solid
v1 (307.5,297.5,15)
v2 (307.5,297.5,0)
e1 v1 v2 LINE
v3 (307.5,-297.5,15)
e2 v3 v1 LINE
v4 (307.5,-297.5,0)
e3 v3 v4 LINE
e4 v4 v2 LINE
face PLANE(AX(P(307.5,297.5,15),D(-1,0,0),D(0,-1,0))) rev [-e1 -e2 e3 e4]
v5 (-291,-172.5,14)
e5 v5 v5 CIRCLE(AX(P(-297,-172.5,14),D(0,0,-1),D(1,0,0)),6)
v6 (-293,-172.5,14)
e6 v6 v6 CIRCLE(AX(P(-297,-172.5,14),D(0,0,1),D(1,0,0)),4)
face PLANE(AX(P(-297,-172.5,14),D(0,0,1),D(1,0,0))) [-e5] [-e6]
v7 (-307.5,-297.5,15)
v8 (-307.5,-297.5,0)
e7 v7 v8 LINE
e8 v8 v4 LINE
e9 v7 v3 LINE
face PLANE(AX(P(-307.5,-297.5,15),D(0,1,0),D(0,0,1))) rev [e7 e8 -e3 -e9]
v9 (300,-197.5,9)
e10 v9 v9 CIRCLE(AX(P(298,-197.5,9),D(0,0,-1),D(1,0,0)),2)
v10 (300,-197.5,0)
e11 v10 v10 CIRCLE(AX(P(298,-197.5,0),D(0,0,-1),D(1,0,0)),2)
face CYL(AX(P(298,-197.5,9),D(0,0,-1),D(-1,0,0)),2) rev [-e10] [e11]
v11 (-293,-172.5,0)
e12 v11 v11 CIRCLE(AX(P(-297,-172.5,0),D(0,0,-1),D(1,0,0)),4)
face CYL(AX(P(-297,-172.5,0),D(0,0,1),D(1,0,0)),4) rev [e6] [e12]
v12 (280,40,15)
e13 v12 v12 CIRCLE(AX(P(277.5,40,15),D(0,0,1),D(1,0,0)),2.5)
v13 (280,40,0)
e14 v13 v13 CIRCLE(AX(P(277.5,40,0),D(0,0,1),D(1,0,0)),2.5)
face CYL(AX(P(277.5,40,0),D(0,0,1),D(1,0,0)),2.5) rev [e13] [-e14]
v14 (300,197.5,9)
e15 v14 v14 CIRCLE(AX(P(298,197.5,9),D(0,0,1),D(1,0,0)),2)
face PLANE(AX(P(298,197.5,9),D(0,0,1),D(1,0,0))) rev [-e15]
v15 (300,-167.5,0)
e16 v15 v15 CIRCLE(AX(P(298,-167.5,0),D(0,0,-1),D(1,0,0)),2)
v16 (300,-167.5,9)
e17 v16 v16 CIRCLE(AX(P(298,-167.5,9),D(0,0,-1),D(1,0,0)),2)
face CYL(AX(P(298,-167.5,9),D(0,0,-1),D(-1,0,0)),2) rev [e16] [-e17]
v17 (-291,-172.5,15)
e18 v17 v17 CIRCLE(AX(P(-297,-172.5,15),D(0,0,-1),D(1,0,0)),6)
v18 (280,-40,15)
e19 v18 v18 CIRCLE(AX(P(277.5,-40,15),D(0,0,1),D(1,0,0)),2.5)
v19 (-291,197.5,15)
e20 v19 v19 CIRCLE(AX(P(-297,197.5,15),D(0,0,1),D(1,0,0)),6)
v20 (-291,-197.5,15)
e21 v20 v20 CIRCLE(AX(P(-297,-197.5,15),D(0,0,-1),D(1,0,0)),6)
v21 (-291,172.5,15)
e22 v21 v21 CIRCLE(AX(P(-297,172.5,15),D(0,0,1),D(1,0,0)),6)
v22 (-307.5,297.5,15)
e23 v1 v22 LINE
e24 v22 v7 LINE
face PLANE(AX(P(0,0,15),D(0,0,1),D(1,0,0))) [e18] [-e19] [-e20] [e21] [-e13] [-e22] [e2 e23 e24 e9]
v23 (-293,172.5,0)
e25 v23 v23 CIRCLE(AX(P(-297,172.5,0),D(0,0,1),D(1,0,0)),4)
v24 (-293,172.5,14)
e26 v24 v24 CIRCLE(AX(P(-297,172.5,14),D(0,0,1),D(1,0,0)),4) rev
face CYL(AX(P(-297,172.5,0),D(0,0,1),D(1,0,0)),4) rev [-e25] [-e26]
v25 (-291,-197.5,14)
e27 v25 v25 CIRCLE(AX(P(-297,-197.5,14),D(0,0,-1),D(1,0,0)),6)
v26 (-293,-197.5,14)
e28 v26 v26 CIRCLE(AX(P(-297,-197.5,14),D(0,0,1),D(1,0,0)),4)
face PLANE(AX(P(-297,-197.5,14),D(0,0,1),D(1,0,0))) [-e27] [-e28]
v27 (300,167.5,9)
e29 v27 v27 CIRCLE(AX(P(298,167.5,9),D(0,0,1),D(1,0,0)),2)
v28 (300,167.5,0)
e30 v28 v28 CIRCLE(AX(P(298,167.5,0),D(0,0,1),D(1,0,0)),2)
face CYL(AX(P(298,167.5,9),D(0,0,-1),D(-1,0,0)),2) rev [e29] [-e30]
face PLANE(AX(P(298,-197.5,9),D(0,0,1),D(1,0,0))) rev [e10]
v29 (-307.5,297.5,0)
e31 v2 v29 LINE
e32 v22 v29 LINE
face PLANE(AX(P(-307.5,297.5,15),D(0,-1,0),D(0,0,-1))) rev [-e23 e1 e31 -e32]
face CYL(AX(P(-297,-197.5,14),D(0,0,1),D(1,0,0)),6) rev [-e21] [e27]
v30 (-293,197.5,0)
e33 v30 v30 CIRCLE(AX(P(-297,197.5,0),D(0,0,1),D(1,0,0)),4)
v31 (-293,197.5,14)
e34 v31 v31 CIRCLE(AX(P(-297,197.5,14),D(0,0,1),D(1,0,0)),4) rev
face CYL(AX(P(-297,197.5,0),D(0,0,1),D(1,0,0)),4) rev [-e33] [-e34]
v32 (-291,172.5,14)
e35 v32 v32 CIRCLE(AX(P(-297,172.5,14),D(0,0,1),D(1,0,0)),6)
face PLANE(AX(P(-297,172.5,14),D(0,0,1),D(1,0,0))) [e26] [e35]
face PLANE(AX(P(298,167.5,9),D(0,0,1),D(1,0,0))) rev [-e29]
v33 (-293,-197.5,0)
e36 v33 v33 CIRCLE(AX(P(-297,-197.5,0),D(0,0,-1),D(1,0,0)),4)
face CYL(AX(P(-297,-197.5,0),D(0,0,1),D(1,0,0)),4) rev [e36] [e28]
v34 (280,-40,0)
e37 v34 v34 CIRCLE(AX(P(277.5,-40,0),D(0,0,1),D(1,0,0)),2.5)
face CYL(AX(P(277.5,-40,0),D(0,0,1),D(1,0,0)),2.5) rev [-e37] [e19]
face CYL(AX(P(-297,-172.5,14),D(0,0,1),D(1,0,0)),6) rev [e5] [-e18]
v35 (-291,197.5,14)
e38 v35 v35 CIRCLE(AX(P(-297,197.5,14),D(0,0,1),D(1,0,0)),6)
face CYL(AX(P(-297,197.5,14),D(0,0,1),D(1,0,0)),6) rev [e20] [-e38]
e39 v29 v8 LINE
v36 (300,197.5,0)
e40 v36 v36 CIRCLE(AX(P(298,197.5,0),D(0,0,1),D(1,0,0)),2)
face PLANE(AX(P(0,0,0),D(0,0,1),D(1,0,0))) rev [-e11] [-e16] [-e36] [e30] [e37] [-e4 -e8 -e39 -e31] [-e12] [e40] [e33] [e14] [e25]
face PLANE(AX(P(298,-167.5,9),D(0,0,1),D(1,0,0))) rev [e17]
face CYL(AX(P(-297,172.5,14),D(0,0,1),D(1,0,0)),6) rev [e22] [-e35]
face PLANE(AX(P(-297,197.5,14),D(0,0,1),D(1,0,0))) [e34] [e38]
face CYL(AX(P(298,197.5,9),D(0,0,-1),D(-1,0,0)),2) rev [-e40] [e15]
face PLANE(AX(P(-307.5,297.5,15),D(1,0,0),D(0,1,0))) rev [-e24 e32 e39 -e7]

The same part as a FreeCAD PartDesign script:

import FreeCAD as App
import Part
import Sketcher


def add_polygon(sketch, points):
    """Adds a closed chain of lines whose ends are joined by coincident constraints."""
    first, n = sketch.GeometryCount, len(points)
    for a, b in zip(points, points[1:] + points[:1]):
        sketch.addGeometry(Part.LineSegment(App.Vector(*a, 0), App.Vector(*b, 0)), False)
    for i in range(n):
        sketch.addConstraint(Sketcher.Constraint("Coincident", first + i, 2, first + (i + 1) % n, 1))

doc = App.newDocument("Part")
body = doc.addObject("PartDesign::Body", "Body")

sketch1 = body.newObject("Sketcher::SketchObject", "Sketch")
sketch1.AttachmentSupport = (doc.getObject("XY_Plane"), [""])
sketch1.MapMode = "FlatFace"
add_polygon(sketch1, [(-308, 298), (-308, -298), (308, -298), (308, 298)])
sketch1.addConstraint([
    Sketcher.Constraint("Vertical", 0),
    Sketcher.Constraint("Horizontal", 1),
    Sketcher.Constraint("Vertical", 2),
    Sketcher.Constraint("Horizontal", 3),
    Sketcher.Constraint("Symmetric", 0, 2, 2, 2, -1, 1),
    Sketcher.Constraint("DistanceX", 1, 1, 1, 2, 615.0),
    Sketcher.Constraint("DistanceY", 0, 2, 0, 1, 595.0),
])
pad1 = body.newObject("PartDesign::Pad", "Pad")
pad1.Profile = sketch1
pad1.Length = 15

sketch2 = body.newObject("Sketcher::SketchObject", "Sketch001")
sketch2.AttachmentSupport = (doc.getObject("XY_Plane"), [""])
sketch2.MapMode = "FlatFace"
sketch2.AttachmentOffset = App.Placement(App.Vector(0, 0, 15), App.Rotation())
sketch2.addGeometry([
    Part.Circle(App.Vector(-297, 197.5, 0), App.Vector(0, 0, 1), 4),
    Part.Circle(App.Vector(-297, 172.5, 0), App.Vector(0, 0, 1), 4),
], False)
sketch2.addConstraint([
    Sketcher.Constraint("Equal", 0, 1),
    Sketcher.Constraint("Vertical", 0, 3, 1, 3),
    Sketcher.Constraint("Diameter", 0, 8.0),
    Sketcher.Constraint("DistanceX", 0, 3, -1, 1, 297.0),
    Sketcher.Constraint("DistanceY", 1, 3, 0, 3, 25.0),
    Sketcher.Constraint("DistanceY", -1, 1, 0, 3, 197.5),
])
pocket1 = body.newObject("PartDesign::Pocket", "Pocket")
pocket1.Profile = sketch2
pocket1.Type = "ThroughAll"
doc.recompute()

mirrored = body.newObject("PartDesign::Mirrored", "Mirrored")
mirrored.Originals = [pocket1]
mirrored.MirrorPlane = (doc.getObject("XZ_Plane"), [""])
body.Tip = mirrored

sketch3 = body.newObject("Sketcher::SketchObject", "Sketch002")
sketch3.AttachmentSupport = (doc.getObject("XY_Plane"), [""])
sketch3.MapMode = "FlatFace"
sketch3.AttachmentOffset = App.Placement(App.Vector(0, 0, 15), App.Rotation())
sketch3.addGeometry([
    Part.Circle(App.Vector(-297, 198, 0), App.Vector(0, 0, 1), 6),
    Part.Circle(App.Vector(-297, 172, 0), App.Vector(0, 0, 1), 6),
], False)
sketch3.addConstraint([
    Sketcher.Constraint("Equal", 0, 1),
    Sketcher.Constraint("Vertical", 0, 3, 1, 3),
    Sketcher.Constraint("Diameter", 0, 12.0),
    Sketcher.Constraint("DistanceX", 0, 3, -1, 1, 297.0),
    Sketcher.Constraint("DistanceY", 1, 3, 0, 3, 25.0),
    Sketcher.Constraint("DistanceY", -1, 1, 0, 3, 197.5),
])
pocket2 = body.newObject("PartDesign::Pocket", "Pocket001")
pocket2.Profile = sketch3
pocket2.Length = 1
doc.recompute()

mirrored2 = body.newObject("PartDesign::Mirrored", "Mirrored001")
mirrored2.Originals = [pocket2]
mirrored2.MirrorPlane = (doc.getObject("XZ_Plane"), [""])
body.Tip = mirrored2

sketch4 = body.newObject("Sketcher::SketchObject", "Sketch003")
sketch4.AttachmentSupport = (doc.getObject("XY_Plane"), [""])
sketch4.MapMode = "FlatFace"
sketch4.AttachmentOffset = App.Placement(App.Vector(0, 0, 15), App.Rotation())
sketch4.addGeometry([
    Part.Circle(App.Vector(277.5, 40, 0), App.Vector(0, 0, 1), 2.5),
    Part.Circle(App.Vector(277.5, -40, 0), App.Vector(0, 0, 1), 2.5),
], False)
sketch4.addConstraint([
    Sketcher.Constraint("Equal", 0, 1),
    Sketcher.Constraint("Symmetric", 0, 3, 1, 3, -1),
    Sketcher.Constraint("Diameter", 0, 5.0),
    Sketcher.Constraint("DistanceY", -1, 1, 0, 3, 40.0),
    Sketcher.Constraint("DistanceX", -1, 1, 0, 3, 277.5),
])
pocket3 = body.newObject("PartDesign::Pocket", "Pocket002")
pocket3.Profile = sketch4
pocket3.Type = "ThroughAll"

sketch5 = body.newObject("Sketcher::SketchObject", "Sketch004")
sketch5.AttachmentSupport = (doc.getObject("XY_Plane"), [""])
sketch5.MapMode = "FlatFace"
sketch5.addGeometry([
    Part.Circle(App.Vector(298, 197.5, 0), App.Vector(0, 0, 1), 2),
    Part.Circle(App.Vector(298, 167.5, 0), App.Vector(0, 0, 1), 2),
], False)
sketch5.addConstraint([
    Sketcher.Constraint("Equal", 0, 1),
    Sketcher.Constraint("Vertical", 0, 3, 1, 3),
    Sketcher.Constraint("Diameter", 0, 4.0),
    Sketcher.Constraint("DistanceX", -1, 1, 0, 3, 298.0),
    Sketcher.Constraint("DistanceY", 1, 3, 0, 3, 30.0),
    Sketcher.Constraint("DistanceY", -1, 1, 0, 3, 197.5),
])
pocket4 = body.newObject("PartDesign::Pocket", "Pocket003")
pocket4.Profile = sketch5
pocket4.Length = 9
pocket4.Reversed = True
doc.recompute()

mirrored3 = body.newObject("PartDesign::Mirrored", "Mirrored002")
mirrored3.Originals = [pocket4]
mirrored3.MirrorPlane = (doc.getObject("XZ_Plane"), [""])
body.Tip = mirrored3

doc.recompute()
